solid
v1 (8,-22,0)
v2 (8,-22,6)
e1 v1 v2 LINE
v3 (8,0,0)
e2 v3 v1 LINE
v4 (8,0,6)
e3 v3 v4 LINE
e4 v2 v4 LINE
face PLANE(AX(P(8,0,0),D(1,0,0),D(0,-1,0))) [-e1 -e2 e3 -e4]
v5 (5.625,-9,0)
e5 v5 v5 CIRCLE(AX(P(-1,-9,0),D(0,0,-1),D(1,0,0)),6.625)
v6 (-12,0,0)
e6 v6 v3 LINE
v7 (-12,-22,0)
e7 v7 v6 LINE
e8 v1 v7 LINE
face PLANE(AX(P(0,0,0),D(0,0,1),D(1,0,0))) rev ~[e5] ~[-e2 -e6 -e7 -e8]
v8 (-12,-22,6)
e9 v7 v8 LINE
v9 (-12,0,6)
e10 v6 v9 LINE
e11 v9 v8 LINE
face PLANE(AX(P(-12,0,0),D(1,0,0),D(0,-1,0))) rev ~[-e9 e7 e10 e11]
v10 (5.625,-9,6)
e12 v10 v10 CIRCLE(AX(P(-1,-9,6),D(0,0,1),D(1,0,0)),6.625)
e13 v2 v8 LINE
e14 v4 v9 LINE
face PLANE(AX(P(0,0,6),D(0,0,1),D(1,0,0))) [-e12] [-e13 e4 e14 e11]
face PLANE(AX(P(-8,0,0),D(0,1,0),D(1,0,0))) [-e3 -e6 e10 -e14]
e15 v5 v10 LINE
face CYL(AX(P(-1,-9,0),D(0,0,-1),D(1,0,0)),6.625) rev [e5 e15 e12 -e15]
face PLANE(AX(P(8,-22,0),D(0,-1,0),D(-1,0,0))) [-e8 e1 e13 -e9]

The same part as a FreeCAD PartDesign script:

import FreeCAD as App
import Part
import Sketcher
from FreeCAD import Vector

doc = App.newDocument("Part")
params = doc.addObject("Spreadsheet::Sheet", "Params")
for row, (alias, value) in enumerate([
    ("sketch1_diameter", "13.25 mm"),
    ("sketch1_width", "20 mm"),
    ("sketch1_height", "22 mm"),
    ("pad1_length", "6 mm"),
], start=1):
    params.set(f"A{row}", alias)
    params.set(f"B{row}", "=" + value)
    params.setAlias(f"B{row}", alias)

body = doc.addObject("PartDesign::Body", "Body")

sketch1 = body.newObject("Sketcher::SketchObject", "Sketch")
sketch1.AttachmentSupport = (doc.getObject("XY_Plane"), [""])
sketch1.MapMode = "FlatFace"
sketch1.addGeometry([
    Part.LineSegment(Vector(8, 0, 0), Vector(-12, 0, 0)),
    Part.LineSegment(Vector(-12, 0, 0), Vector(-12, -22, 0)),
    Part.LineSegment(Vector(-12, -22, 0), Vector(8, -22, 0)),
    Part.LineSegment(Vector(8, -22, 0), Vector(8, 0, 0)),
    Part.Circle(Vector(-1, -9, 0), Vector(0, 0, 1), 7),
], False)
sketch1.addConstraint([
    Sketcher.Constraint("Coincident", 0, 2, 1, 1),
    Sketcher.Constraint("Coincident", 1, 2, 2, 1),
    Sketcher.Constraint("Coincident", 2, 2, 3, 1),
    Sketcher.Constraint("Coincident", 3, 2, 0, 1),
    Sketcher.Constraint("Horizontal", 0),
    Sketcher.Constraint("Vertical", 1),
    Sketcher.Constraint("Horizontal", 2),
    Sketcher.Constraint("Vertical", 3),
    Sketcher.Constraint("PointOnObject", 0, 2, -1),
    Sketcher.Constraint("Diameter", 4, 13.25),
    Sketcher.Constraint("DistanceX", 0, 2, 0, 1, 20.0),
    Sketcher.Constraint("DistanceX", 4, 3, -1, 1, 1.0),
    Sketcher.Constraint("DistanceY", 1, 2, 1, 1, 22.0),
    Sketcher.Constraint("DistanceY", 4, 3, -1, 1, 9.0),
    Sketcher.Constraint("DistanceX", 0, 2, -1, 1, 12.0),
])
sketch1.setExpression("Constraints[9]", "Params.sketch1_diameter")
sketch1.setExpression("Constraints[10]", "Params.sketch1_width")
sketch1.setExpression("Constraints[12]", "Params.sketch1_height")
pad1 = body.newObject("PartDesign::Pad", "Pad")
pad1.Profile = sketch1
pad1.setExpression("Length", "Params.pad1_length")

doc.recompute()
